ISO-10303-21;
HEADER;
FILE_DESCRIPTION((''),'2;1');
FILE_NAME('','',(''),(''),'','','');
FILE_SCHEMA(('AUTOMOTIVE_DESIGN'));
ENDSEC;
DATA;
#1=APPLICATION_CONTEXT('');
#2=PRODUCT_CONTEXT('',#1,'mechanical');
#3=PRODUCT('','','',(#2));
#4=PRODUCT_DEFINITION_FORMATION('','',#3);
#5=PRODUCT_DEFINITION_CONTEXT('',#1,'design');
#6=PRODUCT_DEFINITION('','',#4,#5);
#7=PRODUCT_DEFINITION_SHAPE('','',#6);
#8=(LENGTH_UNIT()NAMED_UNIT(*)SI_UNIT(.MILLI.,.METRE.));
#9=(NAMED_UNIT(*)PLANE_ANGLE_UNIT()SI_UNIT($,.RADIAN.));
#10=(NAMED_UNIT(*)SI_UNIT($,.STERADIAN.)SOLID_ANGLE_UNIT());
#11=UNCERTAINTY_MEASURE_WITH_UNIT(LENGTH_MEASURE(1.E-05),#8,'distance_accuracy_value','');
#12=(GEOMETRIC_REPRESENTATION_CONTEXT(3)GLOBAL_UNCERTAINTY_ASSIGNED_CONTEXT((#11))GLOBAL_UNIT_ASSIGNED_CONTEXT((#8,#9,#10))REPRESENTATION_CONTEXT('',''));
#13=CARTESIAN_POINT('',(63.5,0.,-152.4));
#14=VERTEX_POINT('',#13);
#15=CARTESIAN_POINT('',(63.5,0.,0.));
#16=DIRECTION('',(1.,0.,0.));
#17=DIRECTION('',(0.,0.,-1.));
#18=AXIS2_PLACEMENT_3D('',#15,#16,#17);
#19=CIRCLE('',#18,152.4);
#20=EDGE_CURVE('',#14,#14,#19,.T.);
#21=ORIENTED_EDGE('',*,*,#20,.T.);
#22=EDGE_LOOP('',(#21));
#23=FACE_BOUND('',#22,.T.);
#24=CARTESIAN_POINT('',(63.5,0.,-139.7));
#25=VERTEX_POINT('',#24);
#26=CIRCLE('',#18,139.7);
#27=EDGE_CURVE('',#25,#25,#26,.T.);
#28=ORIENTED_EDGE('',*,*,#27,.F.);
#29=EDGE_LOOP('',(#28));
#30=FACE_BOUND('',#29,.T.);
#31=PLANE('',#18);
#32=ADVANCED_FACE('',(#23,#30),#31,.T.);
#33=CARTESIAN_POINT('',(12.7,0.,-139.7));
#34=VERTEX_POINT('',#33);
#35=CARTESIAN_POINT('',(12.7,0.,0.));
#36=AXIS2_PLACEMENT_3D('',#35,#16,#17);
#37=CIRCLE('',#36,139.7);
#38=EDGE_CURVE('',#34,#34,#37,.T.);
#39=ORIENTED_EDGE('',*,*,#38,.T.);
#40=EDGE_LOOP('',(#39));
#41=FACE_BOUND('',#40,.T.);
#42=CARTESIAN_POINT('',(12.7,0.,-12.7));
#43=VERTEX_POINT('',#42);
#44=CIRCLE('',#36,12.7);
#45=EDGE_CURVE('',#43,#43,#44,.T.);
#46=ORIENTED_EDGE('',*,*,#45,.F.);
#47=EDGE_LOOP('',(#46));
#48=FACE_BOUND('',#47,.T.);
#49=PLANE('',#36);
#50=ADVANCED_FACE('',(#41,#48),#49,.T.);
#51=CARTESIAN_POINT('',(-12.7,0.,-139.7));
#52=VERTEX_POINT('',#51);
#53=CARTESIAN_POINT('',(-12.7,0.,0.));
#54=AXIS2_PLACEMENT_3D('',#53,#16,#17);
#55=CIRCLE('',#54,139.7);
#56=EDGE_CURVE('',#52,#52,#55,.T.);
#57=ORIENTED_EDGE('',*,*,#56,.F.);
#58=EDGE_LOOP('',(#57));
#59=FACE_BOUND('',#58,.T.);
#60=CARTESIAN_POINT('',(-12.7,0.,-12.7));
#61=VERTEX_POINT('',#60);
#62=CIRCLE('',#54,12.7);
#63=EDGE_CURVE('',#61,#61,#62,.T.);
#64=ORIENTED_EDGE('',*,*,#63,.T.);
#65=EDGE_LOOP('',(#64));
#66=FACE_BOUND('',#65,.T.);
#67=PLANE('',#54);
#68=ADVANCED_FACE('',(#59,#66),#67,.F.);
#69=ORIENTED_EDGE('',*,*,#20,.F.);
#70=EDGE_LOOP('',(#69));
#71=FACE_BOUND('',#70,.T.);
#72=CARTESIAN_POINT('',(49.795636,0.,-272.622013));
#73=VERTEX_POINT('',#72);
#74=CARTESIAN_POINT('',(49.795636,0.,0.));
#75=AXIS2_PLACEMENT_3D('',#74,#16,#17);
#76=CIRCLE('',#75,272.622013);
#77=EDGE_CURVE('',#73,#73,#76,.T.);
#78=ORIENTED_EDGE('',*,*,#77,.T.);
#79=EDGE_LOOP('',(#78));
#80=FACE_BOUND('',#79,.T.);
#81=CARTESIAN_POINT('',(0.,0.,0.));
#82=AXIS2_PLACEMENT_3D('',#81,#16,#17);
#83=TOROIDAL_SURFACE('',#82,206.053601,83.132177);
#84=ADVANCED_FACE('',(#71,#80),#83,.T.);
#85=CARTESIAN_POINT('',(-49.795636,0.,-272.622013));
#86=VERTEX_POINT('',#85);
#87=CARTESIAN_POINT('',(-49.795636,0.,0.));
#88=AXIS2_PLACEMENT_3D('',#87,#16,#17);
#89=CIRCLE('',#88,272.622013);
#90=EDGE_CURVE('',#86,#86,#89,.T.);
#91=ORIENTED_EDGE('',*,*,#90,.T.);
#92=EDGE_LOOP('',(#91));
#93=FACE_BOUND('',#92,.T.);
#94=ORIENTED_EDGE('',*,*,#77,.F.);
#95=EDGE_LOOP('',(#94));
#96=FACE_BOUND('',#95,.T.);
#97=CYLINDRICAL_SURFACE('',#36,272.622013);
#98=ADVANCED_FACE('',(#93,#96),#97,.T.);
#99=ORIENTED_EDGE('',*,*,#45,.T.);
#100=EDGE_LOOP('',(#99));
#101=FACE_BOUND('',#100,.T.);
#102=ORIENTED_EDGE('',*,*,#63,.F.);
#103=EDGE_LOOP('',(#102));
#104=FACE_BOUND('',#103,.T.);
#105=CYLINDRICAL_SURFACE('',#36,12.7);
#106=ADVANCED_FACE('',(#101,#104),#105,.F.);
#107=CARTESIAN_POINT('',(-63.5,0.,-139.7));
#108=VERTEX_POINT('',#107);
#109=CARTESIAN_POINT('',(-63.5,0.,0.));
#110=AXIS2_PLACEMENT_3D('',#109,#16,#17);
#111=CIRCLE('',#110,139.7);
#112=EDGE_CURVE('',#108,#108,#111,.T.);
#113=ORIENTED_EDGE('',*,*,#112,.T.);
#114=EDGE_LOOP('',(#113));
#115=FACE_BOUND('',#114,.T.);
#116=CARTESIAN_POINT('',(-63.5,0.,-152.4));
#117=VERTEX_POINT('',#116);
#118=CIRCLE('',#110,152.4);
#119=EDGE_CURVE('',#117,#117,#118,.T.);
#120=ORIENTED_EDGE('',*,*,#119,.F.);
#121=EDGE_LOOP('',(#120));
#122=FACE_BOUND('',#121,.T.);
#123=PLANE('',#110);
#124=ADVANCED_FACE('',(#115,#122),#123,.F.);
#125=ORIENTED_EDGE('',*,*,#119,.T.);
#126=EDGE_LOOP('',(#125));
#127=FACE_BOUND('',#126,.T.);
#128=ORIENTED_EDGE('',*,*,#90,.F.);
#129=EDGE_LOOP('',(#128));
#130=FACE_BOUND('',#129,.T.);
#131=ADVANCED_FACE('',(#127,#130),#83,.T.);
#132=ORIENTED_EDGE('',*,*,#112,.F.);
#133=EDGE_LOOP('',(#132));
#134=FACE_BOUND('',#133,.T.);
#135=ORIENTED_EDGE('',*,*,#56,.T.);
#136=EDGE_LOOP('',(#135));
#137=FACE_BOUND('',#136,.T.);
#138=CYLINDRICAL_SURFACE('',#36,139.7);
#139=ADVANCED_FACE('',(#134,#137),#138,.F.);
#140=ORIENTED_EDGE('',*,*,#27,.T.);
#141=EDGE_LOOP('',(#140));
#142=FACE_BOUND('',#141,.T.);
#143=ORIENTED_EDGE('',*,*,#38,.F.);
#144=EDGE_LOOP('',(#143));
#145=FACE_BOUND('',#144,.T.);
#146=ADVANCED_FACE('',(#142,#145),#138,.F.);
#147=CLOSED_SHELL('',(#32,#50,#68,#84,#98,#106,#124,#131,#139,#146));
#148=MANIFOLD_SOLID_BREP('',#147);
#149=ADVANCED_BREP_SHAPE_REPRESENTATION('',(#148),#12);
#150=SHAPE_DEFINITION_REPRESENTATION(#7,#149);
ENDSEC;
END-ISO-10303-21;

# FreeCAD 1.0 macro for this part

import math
import FreeCAD as App
import Part
import Sketcher
Q = App.Units.Quantity

doc = App.newDocument("Part")
body = doc.addObject("PartDesign::Body", "Body")

# Sketch on XY plane
sketch1 = doc.addObject("Sketcher::SketchObject", "Sketch")
body.addObject(sketch1)
sketch1.AttachmentSupport = (doc.XY_Plane, [""])
sketch1.MapMode = "FlatFace"
sketch1.addGeometry([
    Part.LineSegment(App.Vector(64, 140, 0), App.Vector(64, 152, 0)),  # 0
    Part.ArcOfCircle(Part.Circle(App.Vector(0, 206, 0), App.Vector(0, 0, 1), 83), math.radians(-40), math.radians(53)),  # 1
    Part.LineSegment(App.Vector(50, 273, 0), App.Vector(-50, 273, 0)),  # 2
    Part.ArcOfCircle(Part.Circle(App.Vector(0, 206, 0), App.Vector(0, 0, 1), 83), math.radians(127), math.radians(220)),  # 3
    Part.LineSegment(App.Vector(-64, 152, 0), App.Vector(-64, 140, 0)),  # 4
    Part.LineSegment(App.Vector(-64, 140, 0), App.Vector(-13, 140, 0)),  # 5
    Part.LineSegment(App.Vector(-13, 140, 0), App.Vector(-13, 13, 0)),  # 6
    Part.LineSegment(App.Vector(-13, 13, 0), App.Vector(13, 13, 0)),  # 7
    Part.LineSegment(App.Vector(13, 13, 0), App.Vector(13, 140, 0)),  # 8
    Part.LineSegment(App.Vector(13, 140, 0), App.Vector(64, 140, 0)),  # 9
], False)
sketch1.addConstraint([
    Sketcher.Constraint("Coincident", 0, 2, 1, 1),
    Sketcher.Constraint("Coincident", 1, 2, 2, 1),
    Sketcher.Constraint("Coincident", 2, 2, 3, 1),
    Sketcher.Constraint("Coincident", 3, 2, 4, 1),
    Sketcher.Constraint("Coincident", 4, 2, 5, 1),
    Sketcher.Constraint("Coincident", 5, 2, 6, 1),
    Sketcher.Constraint("Coincident", 6, 2, 7, 1),
    Sketcher.Constraint("Coincident", 7, 2, 8, 1),
    Sketcher.Constraint("Coincident", 8, 2, 9, 1),
    Sketcher.Constraint("Coincident", 9, 2, 0, 1),
    Sketcher.Constraint("Vertical", 0),
    Sketcher.Constraint("Horizontal", 2),
    Sketcher.Constraint("Vertical", 4),
    Sketcher.Constraint("Horizontal", 5),
    Sketcher.Constraint("Vertical", 6),
    Sketcher.Constraint("Horizontal", 7),
    Sketcher.Constraint("Vertical", 8),
    Sketcher.Constraint("Horizontal", 9),
    Sketcher.Constraint("Coincident", 3, 3, 1, 3),
    Sketcher.Constraint("Equal", 1, 3),
    Sketcher.Constraint("Symmetric", 0, 2, 3, 2, -2),
    Sketcher.Constraint("Symmetric", 5, 2, 8, 2, -2),
    Sketcher.Constraint("DistanceX", 5, 1, 5, 2, Q("2 in")),
    Sketcher.Constraint("DistanceX", 7, 1, 7, 2, Q("1 in")),
    Sketcher.Constraint("DistanceY", 6, 2, 6, 1, Q("5 in")),
    Sketcher.Constraint("DistanceY", 0, 1, 0, 2, Q("0.5 in")),
    Sketcher.Constraint("DistanceY", -1, 1, 0, 2, Q("6 in")),
    Sketcher.Constraint("Radius", 1, Q("83.132177 mm")),
    Sketcher.Constraint("DistanceX", 2, 2, 2, 1, Q("99.591272 mm")),
])
revolution = doc.addObject("PartDesign::Revolution", "Revolution")
body.addObject(revolution)
revolution.Profile = sketch1
revolution.ReferenceAxis = (sketch1, ["H_Axis"])
revolution.Angle = 360

doc.recompute()
